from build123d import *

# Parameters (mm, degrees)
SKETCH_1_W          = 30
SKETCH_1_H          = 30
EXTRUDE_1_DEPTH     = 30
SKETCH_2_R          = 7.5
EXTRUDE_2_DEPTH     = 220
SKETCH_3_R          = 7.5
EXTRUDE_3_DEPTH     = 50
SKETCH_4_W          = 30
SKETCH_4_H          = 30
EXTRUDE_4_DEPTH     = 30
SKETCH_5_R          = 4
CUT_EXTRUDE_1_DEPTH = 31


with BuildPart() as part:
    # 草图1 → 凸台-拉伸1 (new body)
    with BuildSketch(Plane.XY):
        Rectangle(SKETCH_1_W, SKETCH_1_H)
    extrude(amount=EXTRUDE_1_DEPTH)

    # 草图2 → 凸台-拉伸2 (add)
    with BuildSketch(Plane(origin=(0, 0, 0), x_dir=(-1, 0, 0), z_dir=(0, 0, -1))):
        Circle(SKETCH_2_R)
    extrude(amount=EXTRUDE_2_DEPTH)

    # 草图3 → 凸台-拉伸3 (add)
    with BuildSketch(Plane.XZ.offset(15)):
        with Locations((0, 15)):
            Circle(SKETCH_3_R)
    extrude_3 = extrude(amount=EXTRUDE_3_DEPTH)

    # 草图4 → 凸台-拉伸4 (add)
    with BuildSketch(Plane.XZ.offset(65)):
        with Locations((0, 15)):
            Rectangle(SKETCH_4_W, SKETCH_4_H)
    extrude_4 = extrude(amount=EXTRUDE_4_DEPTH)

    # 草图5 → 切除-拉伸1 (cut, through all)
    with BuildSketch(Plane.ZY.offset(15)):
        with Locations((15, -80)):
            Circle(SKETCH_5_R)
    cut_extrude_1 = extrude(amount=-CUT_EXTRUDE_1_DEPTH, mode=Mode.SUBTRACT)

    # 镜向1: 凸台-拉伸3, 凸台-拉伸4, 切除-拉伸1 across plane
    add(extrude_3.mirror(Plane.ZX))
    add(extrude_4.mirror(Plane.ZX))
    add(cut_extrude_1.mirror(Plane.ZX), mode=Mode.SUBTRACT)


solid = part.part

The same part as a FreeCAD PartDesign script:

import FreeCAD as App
import Part
import Sketcher
Q = App.Units.Quantity


def add_polygon(sketch, points):
    """Adds a closed chain of lines whose ends are joined by coincident constraints."""
    first, n = sketch.GeometryCount, len(points)
    for a, b in zip(points, points[1:] + points[:1]):
        sketch.addGeometry(Part.LineSegment(App.Vector(*a, 0), App.Vector(*b, 0)), False)
    for i in range(n):
        sketch.addConstraint(Sketcher.Constraint("Coincident", first + i, 2, first + (i + 1) % n, 1))

doc = App.newDocument("Part")
body = doc.addObject("PartDesign::Body", "Body")

sketch1 = body.newObject("Sketcher::SketchObject", "Sketch")
sketch1.AttachmentSupport = (doc.getObject("XY_Plane"), [""])
sketch1.MapMode = "FlatFace"
add_polygon(sketch1, [(-15, 15), (-15, -15), (15, -15), (15, 15)])
sketch1.addConstraint([
    Sketcher.Constraint("Vertical", 0),
    Sketcher.Constraint("Horizontal", 1),
    Sketcher.Constraint("Vertical", 2),
    Sketcher.Constraint("Horizontal", 3),
    Sketcher.Constraint("Symmetric", 0, 2, 2, 2, -1, 1),
    Sketcher.Constraint("Equal", 3, 0),
    Sketcher.Constraint("DistanceX", 1, 1, 1, 2, Q("30 mm")),
])
pad1 = body.newObject("PartDesign::Pad", "Pad")
pad1.Profile = sketch1
pad1.Length = 30

sketch2 = body.newObject("Sketcher::SketchObject", "Sketch001")
sketch2.AttachmentSupport = (doc.getObject("XY_Plane"), [""])
sketch2.MapMode = "FlatFace"
sketch2.addGeometry(Part.Circle(App.Vector(0, 0, 0), App.Vector(0, 0, 1), 8), False)
sketch2.addConstraint([
    Sketcher.Constraint("Coincident", 0, 3, -1, 1),
    Sketcher.Constraint("Diameter", 0, Q("15 mm")),
])
pad2 = body.newObject("PartDesign::Pad", "Pad001")
pad2.Profile = sketch2
pad2.Length = 220
pad2.Reversed = True

sketch3 = body.newObject("Sketcher::SketchObject", "Sketch002")
sketch3.AttachmentSupport = (doc.getObject("XZ_Plane"), [""])
sketch3.MapMode = "FlatFace"
sketch3.AttachmentOffset = App.Placement(App.Vector(0, 0, 15), App.Rotation())
sketch3.addGeometry(Part.Circle(App.Vector(0, 15, 0), App.Vector(0, 0, 1), 8), False)
sketch3.addConstraint([
    Sketcher.Constraint("PointOnObject", 0, 3, -2),
    Sketcher.Constraint("Diameter", 0, Q("15 mm")),
    Sketcher.Constraint("DistanceY", -1, 1, 0, 3, Q("15 mm")),
])
pad3 = body.newObject("PartDesign::Pad", "Pad002")
pad3.Profile = sketch3
pad3.Length = 50

sketch4 = body.newObject("Sketcher::SketchObject", "Sketch003")
sketch4.AttachmentSupport = (doc.getObject("XZ_Plane"), [""])
sketch4.MapMode = "FlatFace"
sketch4.AttachmentOffset = App.Placement(App.Vector(0, 0, 65), App.Rotation())
add_polygon(sketch4, [(-15, 30), (-15, 0), (15, 0), (15, 30)])
sketch4.addConstraint([
    Sketcher.Constraint("Vertical", 0),
    Sketcher.Constraint("Horizontal", 1),
    Sketcher.Constraint("Vertical", 2),
    Sketcher.Constraint("Horizontal", 3),
    Sketcher.Constraint("Symmetric", 0, 2, 1, 2, -1, 1),
    Sketcher.Constraint("Equal", 3, 0),
    Sketcher.Constraint("DistanceX", 1, 1, 1, 2, Q("30 mm")),
])
pad4 = body.newObject("PartDesign::Pad", "Pad003")
pad4.Profile = sketch4
pad4.Length = 30

sketch5 = body.newObject("Sketcher::SketchObject", "Sketch004")
sketch5.AttachmentSupport = (doc.getObject("YZ_Plane"), [""])
sketch5.MapMode = "FlatFace"
sketch5.AttachmentOffset = App.Placement(App.Vector(0, 0, -15), App.Rotation())
sketch5.addGeometry(Part.Circle(App.Vector(-80, 15, 0), App.Vector(0, 0, 1), 4), False)
sketch5.addConstraint([
    Sketcher.Constraint("Diameter", 0, Q("8 mm")),
    Sketcher.Constraint("DistanceX", 0, 3, -1, 1, Q("80 mm")),
    Sketcher.Constraint("DistanceY", -1, 1, 0, 3, Q("15 mm")),
])
pocket1 = body.newObject("PartDesign::Pocket", "Pocket")
pocket1.Profile = sketch5
pocket1.Type = "ThroughAll"
pocket1.Reversed = True
doc.recompute()

mirrored = body.newObject("PartDesign::Mirrored", "Mirrored")
mirrored.Originals = [pad3, pad4, pocket1]
mirrored.MirrorPlane = (doc.getObject("XZ_Plane"), [""])
body.Tip = mirrored

doc.recompute()
